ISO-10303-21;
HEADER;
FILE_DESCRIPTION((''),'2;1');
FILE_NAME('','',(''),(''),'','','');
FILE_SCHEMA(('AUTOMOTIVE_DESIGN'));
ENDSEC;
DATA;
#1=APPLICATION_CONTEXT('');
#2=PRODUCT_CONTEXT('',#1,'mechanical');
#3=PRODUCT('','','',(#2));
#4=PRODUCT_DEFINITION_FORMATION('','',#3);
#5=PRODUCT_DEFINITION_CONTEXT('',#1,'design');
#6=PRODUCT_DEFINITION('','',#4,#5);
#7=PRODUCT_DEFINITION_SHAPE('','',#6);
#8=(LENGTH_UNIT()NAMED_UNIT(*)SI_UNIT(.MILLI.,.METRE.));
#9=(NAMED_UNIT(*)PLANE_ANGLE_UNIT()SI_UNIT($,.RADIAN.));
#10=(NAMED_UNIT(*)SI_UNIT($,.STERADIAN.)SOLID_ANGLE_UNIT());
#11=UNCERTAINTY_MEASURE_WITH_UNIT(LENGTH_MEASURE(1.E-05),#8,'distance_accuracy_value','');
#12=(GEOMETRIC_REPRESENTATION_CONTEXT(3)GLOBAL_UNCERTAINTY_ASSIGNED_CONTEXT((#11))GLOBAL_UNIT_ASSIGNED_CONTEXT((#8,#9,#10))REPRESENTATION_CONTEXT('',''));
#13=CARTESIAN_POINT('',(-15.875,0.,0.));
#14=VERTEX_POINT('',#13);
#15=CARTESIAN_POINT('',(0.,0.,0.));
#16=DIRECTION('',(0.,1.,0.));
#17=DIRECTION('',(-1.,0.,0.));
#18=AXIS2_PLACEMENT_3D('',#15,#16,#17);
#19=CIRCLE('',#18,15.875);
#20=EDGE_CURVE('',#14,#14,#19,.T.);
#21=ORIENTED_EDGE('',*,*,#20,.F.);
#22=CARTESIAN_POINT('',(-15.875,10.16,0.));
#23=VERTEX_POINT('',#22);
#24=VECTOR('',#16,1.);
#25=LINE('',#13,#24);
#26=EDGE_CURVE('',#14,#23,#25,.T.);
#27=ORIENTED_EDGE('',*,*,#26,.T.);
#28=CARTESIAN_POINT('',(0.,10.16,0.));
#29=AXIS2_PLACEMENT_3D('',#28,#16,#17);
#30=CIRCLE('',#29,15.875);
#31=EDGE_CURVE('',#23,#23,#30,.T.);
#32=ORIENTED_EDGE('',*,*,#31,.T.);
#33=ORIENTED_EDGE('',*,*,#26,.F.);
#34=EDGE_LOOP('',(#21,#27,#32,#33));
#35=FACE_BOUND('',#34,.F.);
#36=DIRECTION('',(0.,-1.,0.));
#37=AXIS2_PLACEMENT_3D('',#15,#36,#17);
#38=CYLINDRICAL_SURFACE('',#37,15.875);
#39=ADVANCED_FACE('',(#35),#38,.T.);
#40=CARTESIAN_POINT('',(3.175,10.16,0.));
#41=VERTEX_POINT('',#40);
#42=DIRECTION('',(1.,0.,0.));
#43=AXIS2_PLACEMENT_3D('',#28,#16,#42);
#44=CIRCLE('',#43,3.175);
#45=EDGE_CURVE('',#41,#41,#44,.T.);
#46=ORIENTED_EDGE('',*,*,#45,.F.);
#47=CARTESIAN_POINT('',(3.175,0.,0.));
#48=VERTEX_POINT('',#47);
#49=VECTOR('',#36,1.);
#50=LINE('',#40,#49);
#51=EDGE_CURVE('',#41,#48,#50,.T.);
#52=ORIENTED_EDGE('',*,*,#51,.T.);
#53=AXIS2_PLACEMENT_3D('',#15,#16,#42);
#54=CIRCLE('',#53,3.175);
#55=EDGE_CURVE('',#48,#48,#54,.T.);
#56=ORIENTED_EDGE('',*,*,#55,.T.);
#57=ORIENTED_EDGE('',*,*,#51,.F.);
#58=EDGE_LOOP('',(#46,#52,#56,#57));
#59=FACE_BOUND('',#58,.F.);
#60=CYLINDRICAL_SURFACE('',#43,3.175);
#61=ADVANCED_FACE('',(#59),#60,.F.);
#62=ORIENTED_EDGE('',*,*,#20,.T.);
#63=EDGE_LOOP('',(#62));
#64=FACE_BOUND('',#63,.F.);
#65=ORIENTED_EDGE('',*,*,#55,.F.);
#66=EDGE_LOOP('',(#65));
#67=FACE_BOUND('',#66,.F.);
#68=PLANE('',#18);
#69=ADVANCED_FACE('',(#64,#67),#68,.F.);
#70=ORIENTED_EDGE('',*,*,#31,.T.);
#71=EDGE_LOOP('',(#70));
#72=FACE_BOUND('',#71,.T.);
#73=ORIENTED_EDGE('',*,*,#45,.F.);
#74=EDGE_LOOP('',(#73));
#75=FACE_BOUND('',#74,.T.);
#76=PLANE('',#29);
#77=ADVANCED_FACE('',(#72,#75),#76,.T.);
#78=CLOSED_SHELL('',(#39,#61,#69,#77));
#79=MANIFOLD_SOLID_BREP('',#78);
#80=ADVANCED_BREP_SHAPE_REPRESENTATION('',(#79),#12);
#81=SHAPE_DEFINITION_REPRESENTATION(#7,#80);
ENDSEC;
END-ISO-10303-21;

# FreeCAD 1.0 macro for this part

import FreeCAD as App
import Part
import Sketcher

V = App.Vector
Q = App.Units.Quantity

doc = App.newDocument("Part")
body = doc.addObject("PartDesign::Body", "Body")

# Sketch on XZ plane
sketch1 = body.newObject("Sketcher::SketchObject", "Sketch")
sketch1.AttachmentSupport = (doc.getObject("XZ_Plane"), [""])
sketch1.MapMode = "FlatFace"
sketch1.addGeometry(Part.Circle(V(0, 0, 0), V(0, 0, 1), 16), False)
sketch1.addConstraint(Sketcher.Constraint("Coincident", 0, 3, -1, 1))
sketch1.addConstraint(Sketcher.Constraint("Diameter", 0, Q("1.25 in")))
pad1 = body.newObject("PartDesign::Pad", "Pad")
pad1.Profile = sketch1
pad1.Length = Q("0.4 in")
pad1.Reversed = True

# Sketch on XZ plane
sketch2 = body.newObject("Sketcher::SketchObject", "Sketch001")
sketch2.AttachmentSupport = (doc.getObject("XZ_Plane"), [""])
sketch2.MapMode = "FlatFace"
sketch2.AttachmentOffset = App.Placement(V(0, 0, -0.4 * 25.4), App.Rotation())
sketch2.addGeometry(Part.Circle(V(0, 0, 0), V(0, 0, 1), 3.2), False)
sketch2.addConstraint(Sketcher.Constraint("Coincident", 0, 3, -1, 1))
sketch2.addConstraint(Sketcher.Constraint("Diameter", 0, Q("0.25 in")))
pocket1 = body.newObject("PartDesign::Pocket", "Pocket")
pocket1.Profile = sketch2
pocket1.Type = "ThroughAll"
pocket1.Reversed = True

doc.recompute()
